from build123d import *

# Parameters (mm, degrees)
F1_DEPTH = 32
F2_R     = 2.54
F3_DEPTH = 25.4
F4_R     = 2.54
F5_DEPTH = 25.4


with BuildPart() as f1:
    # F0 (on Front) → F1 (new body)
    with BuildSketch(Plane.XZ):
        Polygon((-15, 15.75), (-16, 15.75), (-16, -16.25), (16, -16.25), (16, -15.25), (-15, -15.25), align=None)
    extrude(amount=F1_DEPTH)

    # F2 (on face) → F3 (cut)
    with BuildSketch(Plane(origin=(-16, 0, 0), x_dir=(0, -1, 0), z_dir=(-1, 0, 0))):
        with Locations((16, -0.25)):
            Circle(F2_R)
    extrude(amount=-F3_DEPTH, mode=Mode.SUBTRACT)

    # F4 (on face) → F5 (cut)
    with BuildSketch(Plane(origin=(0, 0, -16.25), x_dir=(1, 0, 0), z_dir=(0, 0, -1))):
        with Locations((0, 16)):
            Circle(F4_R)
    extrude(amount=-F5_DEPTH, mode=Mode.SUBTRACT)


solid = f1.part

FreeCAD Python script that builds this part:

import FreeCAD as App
import Part
import Sketcher

V = App.Vector

doc = App.newDocument("Part")
params = doc.addObject("Spreadsheet::Sheet", "Params")
for row, (alias, value) in enumerate([
    ("sketch1_width", "1 mm"),
    ("sketch1_width2", "32 mm"),
    ("pad1_length", "32 mm"),
    ("sketch2_diameter", "5.08 mm"),
    ("pocket1_length", "25.4 mm"),
    ("sketch3_diameter", "5.08 mm"),
    ("pocket2_length", "25.4 mm"),
], start=1):
    params.set(f"A{row}", alias)
    params.set(f"B{row}", "=" + value)
    params.setAlias(f"B{row}", alias)

body = doc.addObject("PartDesign::Body", "Body")

# Sketch on XZ plane
sketch1 = body.newObject("Sketcher::SketchObject", "Sketch")
sketch1.AttachmentSupport = (doc.getObject("XZ_Plane"), [""])
sketch1.MapMode = "FlatFace"
sketch1.addGeometry([
    Part.LineSegment(V(-15, 15.8, 0), V(-16, 15.8, 0)),  # 0
    Part.LineSegment(V(-16, 15.8, 0), V(-16, -16.2, 0)),  # 1
    Part.LineSegment(V(-16, -16.2, 0), V(16, -16.2, 0)),  # 2
    Part.LineSegment(V(16, -16.2, 0), V(16, -15.2, 0)),  # 3
    Part.LineSegment(V(16, -15.2, 0), V(-15, -15.2, 0)),  # 4
    Part.LineSegment(V(-15, -15.2, 0), V(-15, 15.8, 0)),  # 5
], False)
sketch1.addConstraint([
    Sketcher.Constraint("Coincident", 0, 2, 1, 1),
    Sketcher.Constraint("Coincident", 1, 2, 2, 1),
    Sketcher.Constraint("Coincident", 2, 2, 3, 1),
    Sketcher.Constraint("Coincident", 3, 2, 4, 1),
    Sketcher.Constraint("Coincident", 4, 2, 5, 1),
    Sketcher.Constraint("Coincident", 5, 2, 0, 1),
    Sketcher.Constraint("Horizontal", 0),
    Sketcher.Constraint("Vertical", 1),
    Sketcher.Constraint("Horizontal", 2),
    Sketcher.Constraint("Vertical", 3),
    Sketcher.Constraint("Horizontal", 4),
    Sketcher.Constraint("Vertical", 5),
    Sketcher.Constraint("Equal", 2, 1),
    Sketcher.Constraint("Equal", 0, 3),
    Sketcher.Constraint("DistanceX", 0, 2, 0, 1, 1.0),
    Sketcher.Constraint("DistanceX", 2, 1, 2, 2, 32.0),
    Sketcher.Constraint("DistanceX", 0, 2, -1, 1, 16.0),
    Sketcher.Constraint("DistanceY", -1, 1, 0, 2, 15.75),
])
sketch1.setExpression("Constraints[14]", "Params.sketch1_width")
sketch1.setExpression("Constraints[15]", "Params.sketch1_width2")
pad1 = body.newObject("PartDesign::Pad", "Pad")
pad1.Profile = sketch1
pad1.setExpression("Length", "Params.pad1_length")

# Sketch on YZ plane
sketch2 = body.newObject("Sketcher::SketchObject", "Sketch001")
sketch2.AttachmentSupport = (doc.getObject("YZ_Plane"), [""])
sketch2.MapMode = "FlatFace"
sketch2.AttachmentOffset = App.Placement(V(0, 0, -16), App.Rotation())
sketch2.addGeometry(Part.Circle(V(-16, -0.2, 0), V(0, 0, 1), 2.5), False)
sketch2.addConstraint([
    Sketcher.Constraint("Diameter", 0, 5.08),
    Sketcher.Constraint("DistanceX", 0, 3, -1, 1, 16.0),
    Sketcher.Constraint("DistanceY", 0, 3, -1, 1, 0.25),
])
sketch2.setExpression("Constraints[0]", "Params.sketch2_diameter")
pocket1 = body.newObject("PartDesign::Pocket", "Pocket")
pocket1.Profile = sketch2
pocket1.setExpression("Length", "Params.pocket1_length")
pocket1.Reversed = True

# Sketch on XY plane
sketch3 = body.newObject("Sketcher::SketchObject", "Sketch002")
sketch3.AttachmentSupport = (doc.getObject("XY_Plane"), [""])
sketch3.MapMode = "FlatFace"
sketch3.AttachmentOffset = App.Placement(V(0, 0, -16.25), App.Rotation())
sketch3.addGeometry(Part.Circle(V(0, -16, 0), V(0, 0, 1), 2.5), False)
sketch3.addConstraint([
    Sketcher.Constraint("PointOnObject", 0, 3, -2),
    Sketcher.Constraint("Diameter", 0, 5.08),
    Sketcher.Constraint("DistanceY", 0, 3, -1, 1, 16.0),
])
sketch3.setExpression("Constraints[1]", "Params.sketch3_diameter")
pocket2 = body.newObject("PartDesign::Pocket", "Pocket001")
pocket2.Profile = sketch3
pocket2.setExpression("Length", "Params.pocket2_length")
pocket2.Reversed = True

doc.recompute()
